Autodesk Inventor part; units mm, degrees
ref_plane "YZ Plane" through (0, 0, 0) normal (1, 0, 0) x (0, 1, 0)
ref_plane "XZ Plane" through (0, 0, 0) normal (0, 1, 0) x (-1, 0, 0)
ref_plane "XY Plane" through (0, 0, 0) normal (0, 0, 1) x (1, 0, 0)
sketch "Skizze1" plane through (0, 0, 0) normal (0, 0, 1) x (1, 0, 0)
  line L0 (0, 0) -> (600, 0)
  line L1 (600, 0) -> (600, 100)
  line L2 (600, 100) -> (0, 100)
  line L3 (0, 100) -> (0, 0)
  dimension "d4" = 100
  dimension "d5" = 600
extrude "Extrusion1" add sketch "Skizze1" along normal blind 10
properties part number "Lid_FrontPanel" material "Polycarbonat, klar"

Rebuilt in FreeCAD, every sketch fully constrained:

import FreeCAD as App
import Part
import Sketcher
from FreeCAD import Vector
Q = App.Units.Quantity

doc = App.newDocument("Part")
params = doc.addObject("Spreadsheet::Sheet", "Params")
for row, (alias, value) in enumerate([
    ("sketch1_width", "600 mm"),
    ("sketch1_height", "100 mm"),
    ("pad1_length", "10 mm"),
], start=1):
    params.set(f"A{row}", alias)
    params.set(f"B{row}", "=" + value)
    params.setAlias(f"B{row}", alias)

body = doc.addObject("PartDesign::Body", "Body")

sketch1 = doc.addObject("Sketcher::SketchObject", "Sketch")
body.addObject(sketch1)
sketch1.AttachmentSupport = (doc.XY_Plane, [""])
sketch1.MapMode = "FlatFace"
sketch1.addGeometry(Part.LineSegment(Vector(0, 100, 0), Vector(0, 0, 0)), False)
sketch1.addGeometry(Part.LineSegment(Vector(0, 0, 0), Vector(600, 0, 0)), False)
sketch1.addGeometry(Part.LineSegment(Vector(600, 0, 0), Vector(600, 100, 0)), False)
sketch1.addGeometry(Part.LineSegment(Vector(600, 100, 0), Vector(0, 100, 0)), False)
sketch1.addConstraint(Sketcher.Constraint("Coincident", 0, 2, 1, 1))
sketch1.addConstraint(Sketcher.Constraint("Coincident", 1, 2, 2, 1))
sketch1.addConstraint(Sketcher.Constraint("Coincident", 2, 2, 3, 1))
sketch1.addConstraint(Sketcher.Constraint("Coincident", 3, 2, 0, 1))
sketch1.addConstraint(Sketcher.Constraint("Vertical", 0))
sketch1.addConstraint(Sketcher.Constraint("Horizontal", 1))
sketch1.addConstraint(Sketcher.Constraint("Vertical", 2))
sketch1.addConstraint(Sketcher.Constraint("Horizontal", 3))
sketch1.addConstraint(Sketcher.Constraint("Coincident", 0, 2, -1, 1))
sketch1.addConstraint(Sketcher.Constraint("DistanceX", 1, 1, 1, 2, Q("600 mm")))
sketch1.addConstraint(Sketcher.Constraint("DistanceY", 0, 2, 0, 1, Q("100 mm")))
sketch1.setExpression("Constraints[9]", "Params.sketch1_width")
sketch1.setExpression("Constraints[10]", "Params.sketch1_height")
pad1 = doc.addObject("PartDesign::Pad", "Pad")
body.addObject(pad1)
pad1.Profile = sketch1
pad1.setExpression("Length", "Params.pad1_length")

doc.recompute()
